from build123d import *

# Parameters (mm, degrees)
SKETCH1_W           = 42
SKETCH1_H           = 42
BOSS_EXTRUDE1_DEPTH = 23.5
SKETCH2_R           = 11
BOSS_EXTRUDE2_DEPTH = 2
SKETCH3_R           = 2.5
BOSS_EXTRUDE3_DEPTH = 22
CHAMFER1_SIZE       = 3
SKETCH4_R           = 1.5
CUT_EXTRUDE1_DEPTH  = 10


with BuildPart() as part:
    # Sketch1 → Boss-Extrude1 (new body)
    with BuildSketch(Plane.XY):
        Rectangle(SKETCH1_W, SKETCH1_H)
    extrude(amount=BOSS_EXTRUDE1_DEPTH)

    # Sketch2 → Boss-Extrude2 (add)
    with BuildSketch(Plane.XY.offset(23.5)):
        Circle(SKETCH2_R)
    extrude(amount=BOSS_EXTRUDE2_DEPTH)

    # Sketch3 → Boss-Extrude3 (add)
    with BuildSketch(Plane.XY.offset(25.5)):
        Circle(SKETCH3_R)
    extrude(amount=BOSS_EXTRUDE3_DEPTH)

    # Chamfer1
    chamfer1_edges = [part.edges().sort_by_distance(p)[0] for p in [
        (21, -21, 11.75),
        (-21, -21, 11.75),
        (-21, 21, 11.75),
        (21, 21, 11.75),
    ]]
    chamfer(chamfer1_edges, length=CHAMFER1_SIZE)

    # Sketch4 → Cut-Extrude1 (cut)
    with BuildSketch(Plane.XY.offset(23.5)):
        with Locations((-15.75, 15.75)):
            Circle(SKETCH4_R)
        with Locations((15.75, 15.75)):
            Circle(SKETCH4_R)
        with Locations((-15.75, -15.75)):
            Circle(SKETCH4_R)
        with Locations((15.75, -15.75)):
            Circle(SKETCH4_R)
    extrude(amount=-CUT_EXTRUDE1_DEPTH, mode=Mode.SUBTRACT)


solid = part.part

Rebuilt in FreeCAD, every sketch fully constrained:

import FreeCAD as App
import Part
import Sketcher
Q = App.Units.Quantity


def edges_at(feature, points):
    """Names of the edges that pass closest to the given points."""
    edges = feature.Shape.Edges
    near = lambda p: min(range(len(edges)), key=lambda i: edges[i].distToShape(Part.Vertex(*p))[0])
    return sorted({f"Edge{near(p) + 1}" for p in points})


def add_polygon(sketch, points):
    """Adds a closed chain of lines whose ends are joined by coincident constraints."""
    first, n = sketch.GeometryCount, len(points)
    for a, b in zip(points, points[1:] + points[:1]):
        sketch.addGeometry(Part.LineSegment(App.Vector(*a, 0), App.Vector(*b, 0)), False)
    for i in range(n):
        sketch.addConstraint(Sketcher.Constraint("Coincident", first + i, 2, first + (i + 1) % n, 1))

doc = App.newDocument("Part")
body = doc.addObject("PartDesign::Body", "Body")

# Sketch on XY plane
sketch1 = body.newObject("Sketcher::SketchObject", "Sketch")
sketch1.AttachmentSupport = (doc.getObject("XY_Plane"), [""])
sketch1.MapMode = "FlatFace"
add_polygon(sketch1, [(-21, 21), (-21, -21), (21, -21), (21, 21)])  # lines 0-3
sketch1.addConstraint([
    Sketcher.Constraint("Vertical", 0),
    Sketcher.Constraint("Horizontal", 1),
    Sketcher.Constraint("Vertical", 2),
    Sketcher.Constraint("Horizontal", 3),
    Sketcher.Constraint("Symmetric", 0, 2, 2, 2, -1, 1),
    Sketcher.Constraint("Equal", 3, 0),
    Sketcher.Constraint("DistanceX", 1, 1, 1, 2, Q("42 mm")),
])
pad1 = body.newObject("PartDesign::Pad", "Pad")
pad1.Profile = sketch1
pad1.Length = 23.5

# Sketch on XY plane
sketch2 = body.newObject("Sketcher::SketchObject", "Sketch001")
sketch2.AttachmentSupport = (doc.getObject("XY_Plane"), [""])
sketch2.MapMode = "FlatFace"
sketch2.AttachmentOffset = App.Placement(App.Vector(0, 0, 23.5), App.Rotation())
sketch2.addGeometry(Part.Circle(App.Vector(0, 0, 0), App.Vector(0, 0, 1), 11), False)
sketch2.addConstraint([
    Sketcher.Constraint("Coincident", 0, 3, -1, 1),
    Sketcher.Constraint("Diameter", 0, Q("22 mm")),
])
pad2 = body.newObject("PartDesign::Pad", "Pad001")
pad2.Profile = sketch2
pad2.Length = 2

# Sketch on XY plane
sketch3 = body.newObject("Sketcher::SketchObject", "Sketch002")
sketch3.AttachmentSupport = (doc.getObject("XY_Plane"), [""])
sketch3.MapMode = "FlatFace"
sketch3.AttachmentOffset = App.Placement(App.Vector(0, 0, 25.5), App.Rotation())
sketch3.addGeometry(Part.Circle(App.Vector(0, 0, 0), App.Vector(0, 0, 1), 2.5), False)
sketch3.addConstraint([
    Sketcher.Constraint("Coincident", 0, 3, -1, 1),
    Sketcher.Constraint("Diameter", 0, Q("5 mm")),
])
pad3 = body.newObject("PartDesign::Pad", "Pad002")
pad3.Profile = sketch3
pad3.Length = 22
doc.recompute()

chamfer = body.newObject("PartDesign::Chamfer", "Chamfer")
chamfer.Base = (pad3, edges_at(pad3, [
    (21, -21, 11.75),
    (-21, -21, 11.75),
    (-21, 21, 11.75),
    (21, 21, 11.75),
]))
chamfer.Size = 3

# Sketch on XY plane
sketch4 = body.newObject("Sketcher::SketchObject", "Sketch003")
sketch4.AttachmentSupport = (doc.getObject("XY_Plane"), [""])
sketch4.MapMode = "FlatFace"
sketch4.AttachmentOffset = App.Placement(App.Vector(0, 0, 23.5), App.Rotation())
sketch4.addGeometry([
    Part.Circle(App.Vector(-15.8, 15.8, 0), App.Vector(0, 0, 1), 1.5),
    Part.Circle(App.Vector(15.8, 15.8, 0), App.Vector(0, 0, 1), 1.5),
    Part.Circle(App.Vector(-15.8, -15.8, 0), App.Vector(0, 0, 1), 1.5),
    Part.Circle(App.Vector(15.8, -15.8, 0), App.Vector(0, 0, 1), 1.5),
], False)
sketch4.addConstraint([
    Sketcher.Constraint("Equal", 0, 1),
    Sketcher.Constraint("Equal", 1, 2),
    Sketcher.Constraint("Equal", 2, 3),
    Sketcher.Constraint("Symmetric", 1, 3, 2, 3, -1, 1),
    Sketcher.Constraint("Symmetric", 0, 3, 3, 3, -1, 1),
    Sketcher.Constraint("Symmetric", 0, 3, 1, 3, -2),
    Sketcher.Constraint("Diameter", 0, Q("3 mm")),
    Sketcher.Constraint("DistanceX", 0, 3, 1, 3, Q("31.5 mm")),
    Sketcher.Constraint("DistanceY", 2, 3, 0, 3, Q("31.5 mm")),
])
pocket1 = body.newObject("PartDesign::Pocket", "Pocket")
pocket1.Profile = sketch4
pocket1.Length = 10

doc.recompute()
